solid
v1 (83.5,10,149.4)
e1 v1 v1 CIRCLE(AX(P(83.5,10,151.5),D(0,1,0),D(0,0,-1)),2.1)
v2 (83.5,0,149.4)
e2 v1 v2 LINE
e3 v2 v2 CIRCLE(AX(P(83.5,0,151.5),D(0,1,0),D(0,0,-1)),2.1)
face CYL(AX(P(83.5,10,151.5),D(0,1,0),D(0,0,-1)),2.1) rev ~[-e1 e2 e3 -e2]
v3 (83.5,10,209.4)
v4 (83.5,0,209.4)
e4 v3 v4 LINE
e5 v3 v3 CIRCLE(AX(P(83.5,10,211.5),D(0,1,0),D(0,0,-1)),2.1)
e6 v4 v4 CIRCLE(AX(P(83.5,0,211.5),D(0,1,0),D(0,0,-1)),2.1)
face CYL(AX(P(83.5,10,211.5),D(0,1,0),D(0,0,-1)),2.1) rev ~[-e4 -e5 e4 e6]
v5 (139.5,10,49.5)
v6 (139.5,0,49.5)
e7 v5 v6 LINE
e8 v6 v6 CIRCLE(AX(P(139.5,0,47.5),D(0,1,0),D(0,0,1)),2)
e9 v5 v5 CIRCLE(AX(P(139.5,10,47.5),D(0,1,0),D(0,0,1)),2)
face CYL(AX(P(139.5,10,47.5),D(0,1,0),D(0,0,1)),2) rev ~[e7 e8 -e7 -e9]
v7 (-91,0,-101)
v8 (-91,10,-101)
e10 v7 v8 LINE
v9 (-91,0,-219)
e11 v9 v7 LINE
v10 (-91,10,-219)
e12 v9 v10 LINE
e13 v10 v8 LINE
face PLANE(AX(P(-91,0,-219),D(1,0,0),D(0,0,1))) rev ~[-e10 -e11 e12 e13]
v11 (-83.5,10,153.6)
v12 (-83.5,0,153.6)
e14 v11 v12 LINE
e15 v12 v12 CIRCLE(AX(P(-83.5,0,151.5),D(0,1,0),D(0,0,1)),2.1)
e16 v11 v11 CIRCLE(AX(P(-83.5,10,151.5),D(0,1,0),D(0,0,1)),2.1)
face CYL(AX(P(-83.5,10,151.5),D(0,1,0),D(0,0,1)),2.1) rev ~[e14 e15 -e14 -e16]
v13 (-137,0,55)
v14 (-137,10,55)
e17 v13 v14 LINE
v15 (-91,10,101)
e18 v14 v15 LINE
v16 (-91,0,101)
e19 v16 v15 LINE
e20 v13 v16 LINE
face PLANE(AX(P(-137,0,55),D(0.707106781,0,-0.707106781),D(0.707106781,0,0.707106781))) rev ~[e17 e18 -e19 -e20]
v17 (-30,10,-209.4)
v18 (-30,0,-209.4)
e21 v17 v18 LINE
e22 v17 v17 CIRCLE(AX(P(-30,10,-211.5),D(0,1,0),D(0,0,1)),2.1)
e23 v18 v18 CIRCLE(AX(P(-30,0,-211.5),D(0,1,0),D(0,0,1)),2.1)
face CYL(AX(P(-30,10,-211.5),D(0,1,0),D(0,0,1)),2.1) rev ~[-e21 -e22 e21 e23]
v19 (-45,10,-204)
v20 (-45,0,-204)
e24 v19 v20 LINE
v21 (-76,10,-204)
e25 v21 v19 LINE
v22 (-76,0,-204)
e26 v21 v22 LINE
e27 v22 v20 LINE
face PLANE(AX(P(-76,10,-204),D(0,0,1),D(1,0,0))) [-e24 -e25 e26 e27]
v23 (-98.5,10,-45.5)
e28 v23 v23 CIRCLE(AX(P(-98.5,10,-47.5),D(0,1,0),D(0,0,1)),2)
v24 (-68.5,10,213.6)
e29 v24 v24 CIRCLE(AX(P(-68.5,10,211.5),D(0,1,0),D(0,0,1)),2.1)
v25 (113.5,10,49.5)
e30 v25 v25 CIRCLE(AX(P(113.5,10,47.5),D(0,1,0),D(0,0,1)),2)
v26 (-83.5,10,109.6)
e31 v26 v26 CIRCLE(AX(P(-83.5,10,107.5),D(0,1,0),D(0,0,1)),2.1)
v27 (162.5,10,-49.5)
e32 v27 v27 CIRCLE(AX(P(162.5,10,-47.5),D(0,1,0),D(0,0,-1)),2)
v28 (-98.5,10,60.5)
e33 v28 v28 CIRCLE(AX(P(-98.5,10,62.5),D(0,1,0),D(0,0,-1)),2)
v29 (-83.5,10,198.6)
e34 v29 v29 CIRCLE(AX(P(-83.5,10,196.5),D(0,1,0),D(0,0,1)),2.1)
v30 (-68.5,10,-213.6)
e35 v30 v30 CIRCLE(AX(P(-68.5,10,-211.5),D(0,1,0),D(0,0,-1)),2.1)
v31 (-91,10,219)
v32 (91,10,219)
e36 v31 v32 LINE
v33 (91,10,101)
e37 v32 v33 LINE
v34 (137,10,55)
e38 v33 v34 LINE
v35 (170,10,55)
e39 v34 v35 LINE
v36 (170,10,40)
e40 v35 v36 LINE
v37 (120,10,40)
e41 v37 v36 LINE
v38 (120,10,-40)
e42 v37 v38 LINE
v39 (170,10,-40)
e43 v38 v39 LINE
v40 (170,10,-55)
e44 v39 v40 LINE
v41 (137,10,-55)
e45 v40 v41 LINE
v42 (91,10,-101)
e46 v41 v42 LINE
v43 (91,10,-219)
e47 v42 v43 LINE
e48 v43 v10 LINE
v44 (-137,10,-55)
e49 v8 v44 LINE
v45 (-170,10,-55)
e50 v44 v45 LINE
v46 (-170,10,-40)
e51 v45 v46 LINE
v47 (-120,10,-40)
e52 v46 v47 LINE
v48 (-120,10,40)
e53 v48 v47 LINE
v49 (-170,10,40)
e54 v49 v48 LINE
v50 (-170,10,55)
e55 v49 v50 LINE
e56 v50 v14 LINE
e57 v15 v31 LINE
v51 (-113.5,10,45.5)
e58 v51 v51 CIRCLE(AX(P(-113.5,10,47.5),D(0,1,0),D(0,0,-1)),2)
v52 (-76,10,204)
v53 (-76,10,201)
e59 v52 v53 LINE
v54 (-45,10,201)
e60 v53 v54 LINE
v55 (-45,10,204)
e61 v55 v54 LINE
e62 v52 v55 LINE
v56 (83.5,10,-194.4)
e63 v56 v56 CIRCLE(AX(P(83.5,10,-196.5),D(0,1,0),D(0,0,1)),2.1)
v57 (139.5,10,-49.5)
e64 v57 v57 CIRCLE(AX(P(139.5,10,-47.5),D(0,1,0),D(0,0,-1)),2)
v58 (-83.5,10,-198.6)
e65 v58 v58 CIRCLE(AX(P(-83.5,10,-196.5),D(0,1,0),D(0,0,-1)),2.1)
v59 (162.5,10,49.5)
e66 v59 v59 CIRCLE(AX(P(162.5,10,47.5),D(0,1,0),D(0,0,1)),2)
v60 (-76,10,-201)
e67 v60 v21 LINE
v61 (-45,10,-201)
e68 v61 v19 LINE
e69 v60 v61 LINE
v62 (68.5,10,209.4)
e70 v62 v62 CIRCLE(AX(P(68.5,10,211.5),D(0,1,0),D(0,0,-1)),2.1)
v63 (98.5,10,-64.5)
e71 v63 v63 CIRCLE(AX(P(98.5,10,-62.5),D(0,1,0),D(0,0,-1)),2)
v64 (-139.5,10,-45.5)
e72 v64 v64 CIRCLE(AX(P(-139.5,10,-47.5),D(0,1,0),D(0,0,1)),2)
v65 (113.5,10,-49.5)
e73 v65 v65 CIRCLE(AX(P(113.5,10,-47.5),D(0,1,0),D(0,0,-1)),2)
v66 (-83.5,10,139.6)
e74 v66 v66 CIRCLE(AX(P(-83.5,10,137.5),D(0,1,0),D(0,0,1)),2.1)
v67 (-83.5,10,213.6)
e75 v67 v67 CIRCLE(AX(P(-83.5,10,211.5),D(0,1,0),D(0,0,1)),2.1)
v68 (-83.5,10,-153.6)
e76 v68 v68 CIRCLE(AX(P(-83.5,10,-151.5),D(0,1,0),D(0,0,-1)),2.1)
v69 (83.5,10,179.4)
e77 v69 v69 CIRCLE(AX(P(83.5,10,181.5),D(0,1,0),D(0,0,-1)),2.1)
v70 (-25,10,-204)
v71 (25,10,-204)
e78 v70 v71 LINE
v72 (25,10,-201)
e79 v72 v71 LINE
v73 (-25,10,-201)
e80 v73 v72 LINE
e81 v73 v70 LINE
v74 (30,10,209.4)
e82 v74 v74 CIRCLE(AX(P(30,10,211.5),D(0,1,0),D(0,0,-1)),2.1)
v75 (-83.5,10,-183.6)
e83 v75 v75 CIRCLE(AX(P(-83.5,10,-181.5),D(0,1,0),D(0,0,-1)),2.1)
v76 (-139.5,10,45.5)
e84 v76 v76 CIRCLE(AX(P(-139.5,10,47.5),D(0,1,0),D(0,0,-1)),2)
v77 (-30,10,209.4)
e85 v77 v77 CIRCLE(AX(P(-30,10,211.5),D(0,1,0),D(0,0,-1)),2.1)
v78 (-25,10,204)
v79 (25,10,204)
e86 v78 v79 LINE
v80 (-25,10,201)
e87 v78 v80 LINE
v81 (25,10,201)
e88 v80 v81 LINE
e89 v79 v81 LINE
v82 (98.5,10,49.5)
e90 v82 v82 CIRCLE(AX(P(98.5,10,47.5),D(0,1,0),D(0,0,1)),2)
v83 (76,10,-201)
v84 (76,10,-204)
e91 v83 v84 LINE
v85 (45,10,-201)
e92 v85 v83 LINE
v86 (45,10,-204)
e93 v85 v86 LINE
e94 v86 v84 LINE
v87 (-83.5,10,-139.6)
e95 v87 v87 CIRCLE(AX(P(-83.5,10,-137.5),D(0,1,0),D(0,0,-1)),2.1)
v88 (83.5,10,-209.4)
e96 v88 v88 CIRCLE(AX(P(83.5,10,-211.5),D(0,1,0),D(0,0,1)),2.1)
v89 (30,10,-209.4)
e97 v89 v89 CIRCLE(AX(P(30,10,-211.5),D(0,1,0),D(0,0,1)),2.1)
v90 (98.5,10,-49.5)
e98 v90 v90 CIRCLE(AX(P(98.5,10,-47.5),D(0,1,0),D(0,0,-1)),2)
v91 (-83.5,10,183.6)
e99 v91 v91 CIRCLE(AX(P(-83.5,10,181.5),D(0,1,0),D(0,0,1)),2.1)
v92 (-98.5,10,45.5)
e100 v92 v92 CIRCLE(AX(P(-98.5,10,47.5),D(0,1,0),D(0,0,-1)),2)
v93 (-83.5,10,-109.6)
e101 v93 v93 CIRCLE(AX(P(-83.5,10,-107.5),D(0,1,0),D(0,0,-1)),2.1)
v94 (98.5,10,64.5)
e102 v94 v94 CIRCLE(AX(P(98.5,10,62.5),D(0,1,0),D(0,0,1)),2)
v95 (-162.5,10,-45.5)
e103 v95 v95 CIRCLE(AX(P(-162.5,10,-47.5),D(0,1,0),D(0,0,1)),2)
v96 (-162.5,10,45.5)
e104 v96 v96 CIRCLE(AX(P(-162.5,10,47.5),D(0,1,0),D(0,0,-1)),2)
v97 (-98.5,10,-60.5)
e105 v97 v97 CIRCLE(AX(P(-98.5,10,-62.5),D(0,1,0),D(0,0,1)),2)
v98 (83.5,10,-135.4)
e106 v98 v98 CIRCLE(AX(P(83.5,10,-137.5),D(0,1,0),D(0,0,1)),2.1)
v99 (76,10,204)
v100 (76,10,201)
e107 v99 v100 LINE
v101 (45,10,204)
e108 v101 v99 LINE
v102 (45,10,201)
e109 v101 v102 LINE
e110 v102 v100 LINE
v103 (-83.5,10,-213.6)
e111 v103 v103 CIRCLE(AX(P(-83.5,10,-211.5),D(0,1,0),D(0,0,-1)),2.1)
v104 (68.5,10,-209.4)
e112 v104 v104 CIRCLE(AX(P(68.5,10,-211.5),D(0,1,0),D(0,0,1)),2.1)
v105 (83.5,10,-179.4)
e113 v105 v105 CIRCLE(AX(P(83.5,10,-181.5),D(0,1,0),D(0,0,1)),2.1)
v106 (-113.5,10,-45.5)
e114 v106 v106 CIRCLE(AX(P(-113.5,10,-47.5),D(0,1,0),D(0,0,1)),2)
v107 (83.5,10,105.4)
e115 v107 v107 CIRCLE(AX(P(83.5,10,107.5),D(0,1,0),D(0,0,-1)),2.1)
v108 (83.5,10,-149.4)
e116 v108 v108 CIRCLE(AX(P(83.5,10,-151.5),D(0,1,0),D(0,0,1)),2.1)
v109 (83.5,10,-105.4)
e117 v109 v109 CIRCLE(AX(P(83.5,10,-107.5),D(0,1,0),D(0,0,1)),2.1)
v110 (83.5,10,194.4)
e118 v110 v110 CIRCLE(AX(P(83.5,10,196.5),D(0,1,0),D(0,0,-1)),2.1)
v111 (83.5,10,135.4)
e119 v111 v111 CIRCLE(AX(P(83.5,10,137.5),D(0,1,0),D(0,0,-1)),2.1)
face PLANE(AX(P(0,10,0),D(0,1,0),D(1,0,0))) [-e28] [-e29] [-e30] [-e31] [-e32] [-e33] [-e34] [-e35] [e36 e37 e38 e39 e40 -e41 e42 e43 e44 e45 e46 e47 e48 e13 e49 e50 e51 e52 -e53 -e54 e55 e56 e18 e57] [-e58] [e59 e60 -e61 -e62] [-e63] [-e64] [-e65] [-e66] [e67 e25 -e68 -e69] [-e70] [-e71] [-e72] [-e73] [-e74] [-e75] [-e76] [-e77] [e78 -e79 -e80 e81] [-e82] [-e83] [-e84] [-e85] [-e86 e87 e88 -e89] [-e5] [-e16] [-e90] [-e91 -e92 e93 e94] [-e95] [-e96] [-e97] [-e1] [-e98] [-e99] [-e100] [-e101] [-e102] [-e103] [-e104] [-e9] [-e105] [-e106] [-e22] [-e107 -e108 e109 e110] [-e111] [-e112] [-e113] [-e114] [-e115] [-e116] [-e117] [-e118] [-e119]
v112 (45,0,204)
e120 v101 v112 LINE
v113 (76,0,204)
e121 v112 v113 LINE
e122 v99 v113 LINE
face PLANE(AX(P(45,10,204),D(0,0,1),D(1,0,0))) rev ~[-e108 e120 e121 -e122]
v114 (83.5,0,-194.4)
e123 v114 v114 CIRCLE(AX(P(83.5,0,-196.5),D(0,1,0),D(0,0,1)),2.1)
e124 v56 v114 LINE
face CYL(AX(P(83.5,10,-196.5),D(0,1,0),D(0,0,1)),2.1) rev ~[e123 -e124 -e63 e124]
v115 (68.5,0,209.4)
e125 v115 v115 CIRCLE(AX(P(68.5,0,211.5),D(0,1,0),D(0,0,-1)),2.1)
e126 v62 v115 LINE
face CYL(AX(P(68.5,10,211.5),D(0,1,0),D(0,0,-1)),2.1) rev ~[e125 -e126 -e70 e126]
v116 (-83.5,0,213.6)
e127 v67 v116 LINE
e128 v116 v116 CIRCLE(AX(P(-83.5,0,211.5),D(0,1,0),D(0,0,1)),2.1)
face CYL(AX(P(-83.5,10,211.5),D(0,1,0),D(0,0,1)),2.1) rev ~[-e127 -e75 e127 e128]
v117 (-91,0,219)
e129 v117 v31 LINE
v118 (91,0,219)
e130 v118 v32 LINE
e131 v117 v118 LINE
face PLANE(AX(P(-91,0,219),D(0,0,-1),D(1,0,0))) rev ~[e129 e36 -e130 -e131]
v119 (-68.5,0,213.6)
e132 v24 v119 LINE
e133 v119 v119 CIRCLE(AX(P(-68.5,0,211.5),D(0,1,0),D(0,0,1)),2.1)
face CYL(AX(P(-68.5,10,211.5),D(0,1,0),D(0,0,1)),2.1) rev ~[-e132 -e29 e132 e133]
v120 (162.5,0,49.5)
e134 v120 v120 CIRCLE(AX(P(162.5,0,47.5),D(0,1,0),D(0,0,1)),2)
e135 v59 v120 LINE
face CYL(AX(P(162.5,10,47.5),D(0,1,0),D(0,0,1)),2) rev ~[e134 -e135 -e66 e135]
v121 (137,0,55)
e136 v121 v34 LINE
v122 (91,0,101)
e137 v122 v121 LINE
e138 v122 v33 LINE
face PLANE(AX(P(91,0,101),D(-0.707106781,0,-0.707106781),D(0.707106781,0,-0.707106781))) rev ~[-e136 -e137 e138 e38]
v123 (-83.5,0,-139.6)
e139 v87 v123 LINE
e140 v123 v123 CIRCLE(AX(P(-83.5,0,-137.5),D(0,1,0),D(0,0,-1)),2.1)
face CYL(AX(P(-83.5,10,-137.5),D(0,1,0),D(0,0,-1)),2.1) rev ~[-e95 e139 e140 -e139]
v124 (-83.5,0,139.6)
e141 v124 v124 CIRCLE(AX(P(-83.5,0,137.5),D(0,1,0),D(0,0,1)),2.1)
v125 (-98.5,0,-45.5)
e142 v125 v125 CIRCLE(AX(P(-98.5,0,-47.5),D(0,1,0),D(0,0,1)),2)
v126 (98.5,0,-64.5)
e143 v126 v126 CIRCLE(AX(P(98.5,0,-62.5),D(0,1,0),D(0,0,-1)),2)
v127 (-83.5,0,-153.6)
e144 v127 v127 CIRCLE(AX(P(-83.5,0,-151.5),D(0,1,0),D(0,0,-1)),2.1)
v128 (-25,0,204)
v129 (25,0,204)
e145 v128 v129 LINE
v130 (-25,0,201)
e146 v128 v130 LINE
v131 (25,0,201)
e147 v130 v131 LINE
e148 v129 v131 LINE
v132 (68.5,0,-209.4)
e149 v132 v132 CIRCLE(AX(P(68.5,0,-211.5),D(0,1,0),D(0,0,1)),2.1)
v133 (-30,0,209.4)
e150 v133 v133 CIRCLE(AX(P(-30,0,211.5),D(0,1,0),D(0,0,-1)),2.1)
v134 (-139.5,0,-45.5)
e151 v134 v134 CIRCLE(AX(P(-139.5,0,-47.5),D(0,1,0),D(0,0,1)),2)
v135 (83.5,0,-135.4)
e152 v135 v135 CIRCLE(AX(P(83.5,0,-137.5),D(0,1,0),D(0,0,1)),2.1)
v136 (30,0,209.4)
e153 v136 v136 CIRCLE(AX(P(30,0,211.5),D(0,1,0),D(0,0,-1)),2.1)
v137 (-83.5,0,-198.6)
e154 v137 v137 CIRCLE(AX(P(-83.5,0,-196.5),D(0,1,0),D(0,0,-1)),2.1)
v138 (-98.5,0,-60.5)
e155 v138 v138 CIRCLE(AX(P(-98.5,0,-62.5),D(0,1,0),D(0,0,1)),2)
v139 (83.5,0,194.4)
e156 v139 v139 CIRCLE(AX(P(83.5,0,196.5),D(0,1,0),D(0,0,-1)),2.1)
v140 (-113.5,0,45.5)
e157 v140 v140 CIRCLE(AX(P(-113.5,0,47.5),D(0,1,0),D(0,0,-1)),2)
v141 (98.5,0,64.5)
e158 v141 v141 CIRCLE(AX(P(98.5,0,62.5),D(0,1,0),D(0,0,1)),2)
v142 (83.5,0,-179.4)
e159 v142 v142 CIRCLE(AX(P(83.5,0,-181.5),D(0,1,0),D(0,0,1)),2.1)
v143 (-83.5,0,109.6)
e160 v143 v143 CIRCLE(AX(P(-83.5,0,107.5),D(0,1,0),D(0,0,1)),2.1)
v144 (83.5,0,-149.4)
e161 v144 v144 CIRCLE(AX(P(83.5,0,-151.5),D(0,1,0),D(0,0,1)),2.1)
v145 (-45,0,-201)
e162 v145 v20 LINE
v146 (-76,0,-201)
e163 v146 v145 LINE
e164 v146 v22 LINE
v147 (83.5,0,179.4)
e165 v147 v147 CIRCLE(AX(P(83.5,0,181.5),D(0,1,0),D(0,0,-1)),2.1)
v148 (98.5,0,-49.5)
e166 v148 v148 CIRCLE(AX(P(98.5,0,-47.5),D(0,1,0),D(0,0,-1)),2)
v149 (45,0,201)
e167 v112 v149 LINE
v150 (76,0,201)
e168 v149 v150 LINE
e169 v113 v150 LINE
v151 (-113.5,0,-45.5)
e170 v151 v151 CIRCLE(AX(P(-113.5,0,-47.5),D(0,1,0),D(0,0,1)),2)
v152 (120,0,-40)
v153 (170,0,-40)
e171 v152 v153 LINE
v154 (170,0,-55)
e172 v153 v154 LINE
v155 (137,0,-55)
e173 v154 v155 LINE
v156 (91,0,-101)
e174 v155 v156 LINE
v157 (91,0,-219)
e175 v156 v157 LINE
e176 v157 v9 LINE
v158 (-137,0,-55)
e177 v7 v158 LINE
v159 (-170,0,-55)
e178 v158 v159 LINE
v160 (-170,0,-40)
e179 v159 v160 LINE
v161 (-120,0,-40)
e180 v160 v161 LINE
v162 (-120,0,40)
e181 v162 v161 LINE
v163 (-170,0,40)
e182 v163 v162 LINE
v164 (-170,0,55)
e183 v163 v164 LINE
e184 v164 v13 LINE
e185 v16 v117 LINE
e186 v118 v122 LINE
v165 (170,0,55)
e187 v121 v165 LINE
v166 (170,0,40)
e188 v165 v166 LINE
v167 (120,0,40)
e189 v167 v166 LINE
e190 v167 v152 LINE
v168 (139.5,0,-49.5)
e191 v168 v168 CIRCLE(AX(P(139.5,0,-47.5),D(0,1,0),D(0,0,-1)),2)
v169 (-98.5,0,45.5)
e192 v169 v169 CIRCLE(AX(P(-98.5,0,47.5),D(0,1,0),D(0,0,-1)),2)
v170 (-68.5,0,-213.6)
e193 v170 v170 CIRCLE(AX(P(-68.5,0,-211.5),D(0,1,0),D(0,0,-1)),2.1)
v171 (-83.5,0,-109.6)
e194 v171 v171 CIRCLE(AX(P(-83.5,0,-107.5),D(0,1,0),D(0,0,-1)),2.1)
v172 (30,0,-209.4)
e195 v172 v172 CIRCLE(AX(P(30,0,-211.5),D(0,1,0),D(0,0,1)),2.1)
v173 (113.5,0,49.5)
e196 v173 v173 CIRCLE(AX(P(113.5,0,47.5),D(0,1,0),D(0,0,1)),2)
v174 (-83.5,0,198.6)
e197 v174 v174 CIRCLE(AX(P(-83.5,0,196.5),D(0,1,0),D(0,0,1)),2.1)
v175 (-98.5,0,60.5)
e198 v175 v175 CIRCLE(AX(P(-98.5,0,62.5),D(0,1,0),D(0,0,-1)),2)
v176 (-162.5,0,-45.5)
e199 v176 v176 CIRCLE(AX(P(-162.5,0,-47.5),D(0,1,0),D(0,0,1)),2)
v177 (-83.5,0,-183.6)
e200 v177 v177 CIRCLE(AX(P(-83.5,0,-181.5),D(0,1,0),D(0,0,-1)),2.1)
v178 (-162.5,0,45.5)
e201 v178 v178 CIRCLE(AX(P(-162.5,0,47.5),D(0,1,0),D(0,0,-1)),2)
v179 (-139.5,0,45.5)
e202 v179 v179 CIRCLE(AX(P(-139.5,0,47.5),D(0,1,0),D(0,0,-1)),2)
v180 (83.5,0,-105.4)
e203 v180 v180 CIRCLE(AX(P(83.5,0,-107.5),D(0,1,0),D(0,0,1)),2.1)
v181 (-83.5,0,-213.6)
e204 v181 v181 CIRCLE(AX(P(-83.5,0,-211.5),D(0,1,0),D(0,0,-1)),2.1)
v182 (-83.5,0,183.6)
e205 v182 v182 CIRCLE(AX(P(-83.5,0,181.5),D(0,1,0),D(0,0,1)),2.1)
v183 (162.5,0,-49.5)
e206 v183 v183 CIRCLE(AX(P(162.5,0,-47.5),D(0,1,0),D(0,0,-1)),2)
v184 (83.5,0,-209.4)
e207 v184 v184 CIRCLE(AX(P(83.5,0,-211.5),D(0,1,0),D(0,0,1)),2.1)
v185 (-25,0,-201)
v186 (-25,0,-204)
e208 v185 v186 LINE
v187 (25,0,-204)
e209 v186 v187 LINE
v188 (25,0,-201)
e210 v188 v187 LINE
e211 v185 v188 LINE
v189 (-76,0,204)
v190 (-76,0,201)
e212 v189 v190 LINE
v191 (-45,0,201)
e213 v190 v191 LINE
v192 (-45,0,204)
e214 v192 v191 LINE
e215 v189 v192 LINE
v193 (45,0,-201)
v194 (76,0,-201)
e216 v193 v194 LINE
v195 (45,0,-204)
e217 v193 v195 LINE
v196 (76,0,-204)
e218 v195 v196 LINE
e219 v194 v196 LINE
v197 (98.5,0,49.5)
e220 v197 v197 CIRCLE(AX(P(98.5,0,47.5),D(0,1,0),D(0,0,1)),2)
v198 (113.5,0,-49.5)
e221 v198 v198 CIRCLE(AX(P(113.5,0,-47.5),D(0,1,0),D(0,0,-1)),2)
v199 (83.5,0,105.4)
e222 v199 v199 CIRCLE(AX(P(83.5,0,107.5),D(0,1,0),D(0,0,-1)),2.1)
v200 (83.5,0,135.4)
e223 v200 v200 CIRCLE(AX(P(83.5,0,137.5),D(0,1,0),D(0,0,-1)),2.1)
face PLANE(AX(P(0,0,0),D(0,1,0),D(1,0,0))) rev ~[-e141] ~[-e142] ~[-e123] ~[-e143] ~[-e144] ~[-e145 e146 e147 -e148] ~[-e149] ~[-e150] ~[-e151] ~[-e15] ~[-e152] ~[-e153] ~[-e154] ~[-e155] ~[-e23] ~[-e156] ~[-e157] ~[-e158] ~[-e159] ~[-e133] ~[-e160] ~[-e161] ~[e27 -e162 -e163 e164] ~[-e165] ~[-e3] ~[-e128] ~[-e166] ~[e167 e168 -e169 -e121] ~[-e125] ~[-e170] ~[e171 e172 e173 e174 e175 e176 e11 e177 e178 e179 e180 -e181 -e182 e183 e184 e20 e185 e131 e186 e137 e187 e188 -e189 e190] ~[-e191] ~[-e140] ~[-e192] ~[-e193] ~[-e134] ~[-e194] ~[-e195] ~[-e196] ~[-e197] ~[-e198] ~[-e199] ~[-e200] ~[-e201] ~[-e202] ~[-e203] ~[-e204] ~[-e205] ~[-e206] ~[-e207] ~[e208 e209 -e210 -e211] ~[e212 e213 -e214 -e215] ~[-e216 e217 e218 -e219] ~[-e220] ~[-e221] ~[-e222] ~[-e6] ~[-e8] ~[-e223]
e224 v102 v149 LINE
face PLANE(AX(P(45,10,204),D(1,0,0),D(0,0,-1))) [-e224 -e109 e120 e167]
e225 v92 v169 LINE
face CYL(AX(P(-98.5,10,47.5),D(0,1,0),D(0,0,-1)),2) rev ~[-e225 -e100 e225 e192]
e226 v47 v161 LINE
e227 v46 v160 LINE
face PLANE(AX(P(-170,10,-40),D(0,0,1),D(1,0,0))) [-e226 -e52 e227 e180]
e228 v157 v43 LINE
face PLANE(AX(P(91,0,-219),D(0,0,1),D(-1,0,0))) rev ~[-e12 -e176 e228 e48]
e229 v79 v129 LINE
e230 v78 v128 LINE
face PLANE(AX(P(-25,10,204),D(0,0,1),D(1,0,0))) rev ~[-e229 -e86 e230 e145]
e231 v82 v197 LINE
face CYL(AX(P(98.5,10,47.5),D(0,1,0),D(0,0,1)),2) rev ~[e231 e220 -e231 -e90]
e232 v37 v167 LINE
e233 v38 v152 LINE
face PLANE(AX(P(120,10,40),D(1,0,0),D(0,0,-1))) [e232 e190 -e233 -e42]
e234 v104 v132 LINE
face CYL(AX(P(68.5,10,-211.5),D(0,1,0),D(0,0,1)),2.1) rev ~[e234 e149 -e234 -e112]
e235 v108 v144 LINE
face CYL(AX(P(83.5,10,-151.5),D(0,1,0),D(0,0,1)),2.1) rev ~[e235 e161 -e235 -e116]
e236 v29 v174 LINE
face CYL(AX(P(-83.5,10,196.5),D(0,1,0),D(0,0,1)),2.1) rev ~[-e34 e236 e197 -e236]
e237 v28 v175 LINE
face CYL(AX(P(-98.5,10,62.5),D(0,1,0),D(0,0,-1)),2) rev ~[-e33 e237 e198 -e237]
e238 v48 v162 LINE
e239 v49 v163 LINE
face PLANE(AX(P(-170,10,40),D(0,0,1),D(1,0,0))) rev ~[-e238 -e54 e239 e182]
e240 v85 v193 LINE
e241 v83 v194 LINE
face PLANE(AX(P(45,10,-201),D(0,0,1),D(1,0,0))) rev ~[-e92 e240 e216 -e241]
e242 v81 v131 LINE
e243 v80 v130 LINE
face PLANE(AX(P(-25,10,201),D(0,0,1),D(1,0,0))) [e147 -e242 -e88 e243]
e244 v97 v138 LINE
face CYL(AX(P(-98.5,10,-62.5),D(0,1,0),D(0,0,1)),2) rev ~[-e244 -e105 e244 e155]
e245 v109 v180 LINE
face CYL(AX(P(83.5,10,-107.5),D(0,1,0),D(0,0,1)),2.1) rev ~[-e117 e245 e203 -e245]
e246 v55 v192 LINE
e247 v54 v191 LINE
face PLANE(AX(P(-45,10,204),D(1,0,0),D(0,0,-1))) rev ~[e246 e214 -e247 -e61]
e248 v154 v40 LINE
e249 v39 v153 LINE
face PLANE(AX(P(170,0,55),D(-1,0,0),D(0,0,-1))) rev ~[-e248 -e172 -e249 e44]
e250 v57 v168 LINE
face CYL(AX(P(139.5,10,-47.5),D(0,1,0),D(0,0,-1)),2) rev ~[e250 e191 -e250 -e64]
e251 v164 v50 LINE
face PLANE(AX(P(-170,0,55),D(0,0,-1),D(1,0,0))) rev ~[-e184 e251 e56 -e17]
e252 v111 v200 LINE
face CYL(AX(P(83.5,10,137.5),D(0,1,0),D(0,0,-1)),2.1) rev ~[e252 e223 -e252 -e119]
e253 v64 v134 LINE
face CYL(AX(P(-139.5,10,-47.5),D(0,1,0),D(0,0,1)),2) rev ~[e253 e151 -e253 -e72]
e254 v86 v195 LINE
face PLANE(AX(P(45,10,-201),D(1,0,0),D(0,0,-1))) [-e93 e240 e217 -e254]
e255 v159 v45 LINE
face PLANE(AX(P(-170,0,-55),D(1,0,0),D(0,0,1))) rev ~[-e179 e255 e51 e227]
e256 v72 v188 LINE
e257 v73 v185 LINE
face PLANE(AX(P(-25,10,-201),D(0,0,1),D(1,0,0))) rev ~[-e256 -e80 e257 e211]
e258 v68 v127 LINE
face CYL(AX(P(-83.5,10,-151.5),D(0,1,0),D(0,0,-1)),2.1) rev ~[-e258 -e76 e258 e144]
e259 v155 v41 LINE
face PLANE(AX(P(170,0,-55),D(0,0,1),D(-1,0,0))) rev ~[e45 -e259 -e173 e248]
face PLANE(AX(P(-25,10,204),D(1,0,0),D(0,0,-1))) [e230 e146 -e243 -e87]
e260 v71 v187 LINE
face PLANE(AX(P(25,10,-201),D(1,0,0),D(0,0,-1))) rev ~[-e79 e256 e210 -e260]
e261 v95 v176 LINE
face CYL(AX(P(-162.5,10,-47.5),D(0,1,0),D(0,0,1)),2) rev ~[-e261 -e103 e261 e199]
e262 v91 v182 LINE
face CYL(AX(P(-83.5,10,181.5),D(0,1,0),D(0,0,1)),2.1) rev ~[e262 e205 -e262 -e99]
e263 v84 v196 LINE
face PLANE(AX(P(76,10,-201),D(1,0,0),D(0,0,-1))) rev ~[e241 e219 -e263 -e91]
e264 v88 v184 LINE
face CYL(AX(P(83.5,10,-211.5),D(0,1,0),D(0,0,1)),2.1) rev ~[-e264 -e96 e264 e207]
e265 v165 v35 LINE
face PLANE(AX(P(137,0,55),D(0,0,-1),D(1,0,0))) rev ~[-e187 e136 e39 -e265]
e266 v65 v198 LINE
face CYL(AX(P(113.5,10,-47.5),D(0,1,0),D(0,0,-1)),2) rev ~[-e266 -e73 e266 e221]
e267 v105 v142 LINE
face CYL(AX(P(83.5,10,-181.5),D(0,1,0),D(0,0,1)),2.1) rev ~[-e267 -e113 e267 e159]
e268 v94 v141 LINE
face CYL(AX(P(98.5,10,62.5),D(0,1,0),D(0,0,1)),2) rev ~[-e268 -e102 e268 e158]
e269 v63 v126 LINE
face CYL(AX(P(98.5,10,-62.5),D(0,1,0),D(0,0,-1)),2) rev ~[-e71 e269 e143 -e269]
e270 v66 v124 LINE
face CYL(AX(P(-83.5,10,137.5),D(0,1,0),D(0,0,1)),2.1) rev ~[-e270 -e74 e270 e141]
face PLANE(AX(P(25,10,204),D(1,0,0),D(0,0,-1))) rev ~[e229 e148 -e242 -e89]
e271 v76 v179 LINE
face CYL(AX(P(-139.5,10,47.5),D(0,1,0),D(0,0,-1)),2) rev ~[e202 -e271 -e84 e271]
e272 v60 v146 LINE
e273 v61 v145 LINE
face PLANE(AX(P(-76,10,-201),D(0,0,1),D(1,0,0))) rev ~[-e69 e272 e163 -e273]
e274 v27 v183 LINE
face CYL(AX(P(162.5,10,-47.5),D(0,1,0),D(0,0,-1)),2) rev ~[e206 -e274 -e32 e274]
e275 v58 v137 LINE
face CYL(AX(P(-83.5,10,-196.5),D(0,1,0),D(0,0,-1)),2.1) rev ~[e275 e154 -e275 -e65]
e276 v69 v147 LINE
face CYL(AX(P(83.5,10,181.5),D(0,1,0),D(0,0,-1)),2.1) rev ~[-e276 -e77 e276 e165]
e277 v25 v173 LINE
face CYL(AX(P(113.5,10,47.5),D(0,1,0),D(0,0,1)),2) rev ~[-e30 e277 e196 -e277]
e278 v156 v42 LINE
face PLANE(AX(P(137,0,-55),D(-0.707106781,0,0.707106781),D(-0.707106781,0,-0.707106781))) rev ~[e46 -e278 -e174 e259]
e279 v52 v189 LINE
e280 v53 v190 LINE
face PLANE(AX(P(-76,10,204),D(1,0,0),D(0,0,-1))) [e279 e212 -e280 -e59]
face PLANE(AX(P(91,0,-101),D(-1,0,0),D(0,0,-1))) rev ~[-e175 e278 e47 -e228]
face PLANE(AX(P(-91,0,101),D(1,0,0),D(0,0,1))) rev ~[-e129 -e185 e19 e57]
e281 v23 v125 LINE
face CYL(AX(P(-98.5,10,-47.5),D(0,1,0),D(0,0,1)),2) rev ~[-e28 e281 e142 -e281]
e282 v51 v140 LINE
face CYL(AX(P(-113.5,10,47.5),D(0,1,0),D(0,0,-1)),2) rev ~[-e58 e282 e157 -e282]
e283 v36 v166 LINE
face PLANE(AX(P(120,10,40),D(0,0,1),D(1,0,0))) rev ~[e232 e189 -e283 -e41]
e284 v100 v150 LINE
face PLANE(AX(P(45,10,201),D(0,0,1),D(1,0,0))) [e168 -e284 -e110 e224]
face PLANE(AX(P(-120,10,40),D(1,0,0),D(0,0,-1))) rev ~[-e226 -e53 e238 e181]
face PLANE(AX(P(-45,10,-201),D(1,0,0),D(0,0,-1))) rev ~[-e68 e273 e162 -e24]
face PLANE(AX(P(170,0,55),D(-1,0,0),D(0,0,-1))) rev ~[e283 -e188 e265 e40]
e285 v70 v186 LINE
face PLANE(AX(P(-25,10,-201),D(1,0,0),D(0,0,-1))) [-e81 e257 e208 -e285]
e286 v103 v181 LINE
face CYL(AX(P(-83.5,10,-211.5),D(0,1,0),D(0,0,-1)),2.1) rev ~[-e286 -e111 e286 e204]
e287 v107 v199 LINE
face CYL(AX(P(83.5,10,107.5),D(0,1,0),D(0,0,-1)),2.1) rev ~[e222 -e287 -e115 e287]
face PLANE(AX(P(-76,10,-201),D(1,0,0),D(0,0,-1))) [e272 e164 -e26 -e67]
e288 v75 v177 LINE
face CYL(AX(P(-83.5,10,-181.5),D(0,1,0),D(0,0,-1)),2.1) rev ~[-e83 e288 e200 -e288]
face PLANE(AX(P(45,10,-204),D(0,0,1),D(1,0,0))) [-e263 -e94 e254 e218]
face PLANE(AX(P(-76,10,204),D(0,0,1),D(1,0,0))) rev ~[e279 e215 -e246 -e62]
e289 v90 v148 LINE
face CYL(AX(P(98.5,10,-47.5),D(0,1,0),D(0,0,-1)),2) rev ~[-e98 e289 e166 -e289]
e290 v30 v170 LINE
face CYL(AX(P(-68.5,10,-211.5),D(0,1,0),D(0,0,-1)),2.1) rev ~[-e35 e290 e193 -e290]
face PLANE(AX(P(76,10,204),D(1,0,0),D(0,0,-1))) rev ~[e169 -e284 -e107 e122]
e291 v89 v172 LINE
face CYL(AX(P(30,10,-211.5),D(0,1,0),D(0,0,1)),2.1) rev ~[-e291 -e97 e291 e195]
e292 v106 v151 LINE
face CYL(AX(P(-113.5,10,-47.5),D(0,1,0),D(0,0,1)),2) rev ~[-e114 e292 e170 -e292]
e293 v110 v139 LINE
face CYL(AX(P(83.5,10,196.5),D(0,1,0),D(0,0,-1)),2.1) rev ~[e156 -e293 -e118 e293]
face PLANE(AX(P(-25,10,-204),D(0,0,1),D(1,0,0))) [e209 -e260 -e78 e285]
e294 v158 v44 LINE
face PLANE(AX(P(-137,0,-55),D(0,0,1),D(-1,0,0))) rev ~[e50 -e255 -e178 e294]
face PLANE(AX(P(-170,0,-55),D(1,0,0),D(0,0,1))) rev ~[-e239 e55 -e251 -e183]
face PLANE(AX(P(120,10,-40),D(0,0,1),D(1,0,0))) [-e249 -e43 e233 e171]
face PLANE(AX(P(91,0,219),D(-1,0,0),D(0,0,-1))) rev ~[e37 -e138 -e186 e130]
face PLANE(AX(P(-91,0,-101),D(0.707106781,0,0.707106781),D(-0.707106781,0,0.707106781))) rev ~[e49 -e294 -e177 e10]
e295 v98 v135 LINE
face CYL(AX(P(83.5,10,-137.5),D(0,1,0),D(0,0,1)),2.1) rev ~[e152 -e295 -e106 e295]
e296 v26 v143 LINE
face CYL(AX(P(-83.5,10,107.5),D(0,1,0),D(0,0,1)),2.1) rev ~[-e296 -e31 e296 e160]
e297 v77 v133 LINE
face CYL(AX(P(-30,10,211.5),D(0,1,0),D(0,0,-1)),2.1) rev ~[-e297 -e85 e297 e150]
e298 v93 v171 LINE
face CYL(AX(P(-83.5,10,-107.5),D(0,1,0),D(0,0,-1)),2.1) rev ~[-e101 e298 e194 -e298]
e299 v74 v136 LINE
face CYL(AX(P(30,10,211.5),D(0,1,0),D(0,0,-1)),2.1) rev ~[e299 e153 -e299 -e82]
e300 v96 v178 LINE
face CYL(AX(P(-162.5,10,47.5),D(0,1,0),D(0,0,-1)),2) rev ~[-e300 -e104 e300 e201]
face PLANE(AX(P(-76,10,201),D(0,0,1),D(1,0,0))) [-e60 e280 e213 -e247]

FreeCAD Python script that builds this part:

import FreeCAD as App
import Part
import Sketcher
from FreeCAD import Vector
Q = App.Units.Quantity


def add_polygon(sketch, points):
    """Adds a closed chain of lines whose ends are joined by coincident constraints."""
    first, n = sketch.GeometryCount, len(points)
    for a, b in zip(points, points[1:] + points[:1]):
        sketch.addGeometry(Part.LineSegment(App.Vector(*a, 0), App.Vector(*b, 0)), False)
    for i in range(n):
        sketch.addConstraint(Sketcher.Constraint("Coincident", first + i, 2, first + (i + 1) % n, 1))

doc = App.newDocument("Part")
params = doc.addObject("Spreadsheet::Sheet", "Params")
for row, (alias, value) in enumerate([
    ("sketch1_width", "182 mm"),
    ("sketch1_width2", "33 mm"),
    ("sketch1_height", "118 mm"),
    ("sketch1_height2", "110 mm"),
    ("pad1_length", "10 mm"),
    ("sketch2_diameter", "4 mm"),
    ("sketch2_width", "50 mm"),
    ("sketch2_height", "80 mm"),
    ("sketch3_diameter", "4.2 mm"),
    ("sketch3_width", "50 mm"),
    ("sketch3_width2", "31 mm"),
    ("sketch3_height", "3 mm"),
], start=1):
    params.set(f"A{row}", alias)
    params.set(f"B{row}", "=" + value)
    params.setAlias(f"B{row}", alias)

body = doc.addObject("PartDesign::Body", "Body")

sketch1 = body.newObject("Sketcher::SketchObject", "Sketch")
sketch1.AttachmentSupport = (doc.getObject("XZ_Plane"), [""])
sketch1.MapMode = "FlatFace"
add_polygon(sketch1, [(-91, 219), (91, 219), (91, 101), (137, 55), (170, 55), (170, -55), (137, -55), (91, -101), (91, -219), (-91, -219), (-91, -101), (-137, -55), (-170, -55), (-170, 55), (-137, 55), (-91, 101)])
sketch1.addConstraint(Sketcher.Constraint("Horizontal", 0))
sketch1.addConstraint(Sketcher.Constraint("Vertical", 1))
sketch1.addConstraint(Sketcher.Constraint("Horizontal", 3))
sketch1.addConstraint(Sketcher.Constraint("Vertical", 4))
sketch1.addConstraint(Sketcher.Constraint("Horizontal", 5))
sketch1.addConstraint(Sketcher.Constraint("Vertical", 7))
sketch1.addConstraint(Sketcher.Constraint("Horizontal", 8))
sketch1.addConstraint(Sketcher.Constraint("Vertical", 9))
sketch1.addConstraint(Sketcher.Constraint("Horizontal", 11))
sketch1.addConstraint(Sketcher.Constraint("Vertical", 12))
sketch1.addConstraint(Sketcher.Constraint("Horizontal", 13))
sketch1.addConstraint(Sketcher.Constraint("Vertical", 15))
sketch1.addConstraint(Sketcher.Constraint("Symmetric", 0, 2, 8, 2, -1, 1))
sketch1.addConstraint(Sketcher.Constraint("Symmetric", 2, 2, 10, 2, -1, 1))
sketch1.addConstraint(Sketcher.Constraint("Symmetric", 4, 2, 12, 2, -1, 1))
sketch1.addConstraint(Sketcher.Constraint("Symmetric", 6, 2, 14, 2, -1, 1))
sketch1.addConstraint(Sketcher.Constraint("Symmetric", 6, 2, 9, 2, -2))
sketch1.addConstraint(Sketcher.Constraint("Symmetric", 5, 2, 10, 2, -2))
sketch1.addConstraint(Sketcher.Constraint("Perpendicular", 2, 6))
sketch1.addConstraint(Sketcher.Constraint("Perpendicular", 6, 10))
sketch1.addConstraint(Sketcher.Constraint("Perpendicular", 10, 14))
sketch1.addConstraint(Sketcher.Constraint("DistanceX", 0, 1, 0, 2, Q("182 mm")))
sketch1.addConstraint(Sketcher.Constraint("DistanceX", 3, 1, 3, 2, Q("33 mm")))
sketch1.addConstraint(Sketcher.Constraint("DistanceY", 1, 2, 1, 1, Q("118 mm")))
sketch1.addConstraint(Sketcher.Constraint("DistanceY", 4, 2, 4, 1, Q("110 mm")))
sketch1.addConstraint(Sketcher.Constraint("DistanceY", -1, 1, 0, 2, Q("219 mm")))
sketch1.setExpression("Constraints[37]", "Params.sketch1_width")
sketch1.setExpression("Constraints[38]", "Params.sketch1_width2")
sketch1.setExpression("Constraints[39]", "Params.sketch1_height")
sketch1.setExpression("Constraints[40]", "Params.sketch1_height2")
pad1 = body.newObject("PartDesign::Pad", "Pad")
pad1.Profile = sketch1
pad1.setExpression("Length", "Params.pad1_length")
pad1.Reversed = True

sketch2 = body.newObject("Sketcher::SketchObject", "Sketch001")
sketch2.AttachmentSupport = (doc.getObject("XZ_Plane"), [""])
sketch2.MapMode = "FlatFace"
sketch2.AttachmentOffset = App.Placement(Vector(0, 0, -10), App.Rotation())
sketch2.addGeometry(Part.Circle(Vector(-162.5, -47.5, 0), Vector(0, 0, 1), 2), False)
sketch2.addGeometry(Part.Circle(Vector(-139.5, -47.5, 0), Vector(0, 0, 1), 2), False)
sketch2.addGeometry(Part.Circle(Vector(-139.5, 47.5, 0), Vector(0, 0, 1), 2), False)
sketch2.addGeometry(Part.Circle(Vector(-162.5, 47.5, 0), Vector(0, 0, 1), 2), False)
sketch2.addGeometry(Part.Circle(Vector(-113.5, -47.5, 0), Vector(0, 0, 1), 2), False)
sketch2.addGeometry(Part.Circle(Vector(-98.5, -47.5, 0), Vector(0, 0, 1), 2), False)
sketch2.addGeometry(Part.Circle(Vector(-98.5, -62.5, 0), Vector(0, 0, 1), 2), False)
sketch2.addGeometry(Part.Circle(Vector(-98.5, 62.5, 0), Vector(0, 0, 1), 2), False)
sketch2.addGeometry(Part.Circle(Vector(-98.5, 47.5, 0), Vector(0, 0, 1), 2), False)
sketch2.addGeometry(Part.Circle(Vector(-113.5, 47.5, 0), Vector(0, 0, 1), 2), False)
sketch2.addGeometry(Part.Circle(Vector(113.5, 47.5, 0), Vector(0, 0, 1), 2), False)
sketch2.addGeometry(Part.Circle(Vector(98.5, 47.5, 0), Vector(0, 0, 1), 2), False)
sketch2.addGeometry(Part.Circle(Vector(98.5, 62.5, 0), Vector(0, 0, 1), 2), False)
sketch2.addGeometry(Part.Circle(Vector(98.5, -62.5, 0), Vector(0, 0, 1), 2), False)
sketch2.addGeometry(Part.Circle(Vector(98.5, -47.5, 0), Vector(0, 0, 1), 2), False)
sketch2.addGeometry(Part.Circle(Vector(113.5, -47.5, 0), Vector(0, 0, 1), 2), False)
sketch2.addGeometry(Part.Circle(Vector(162.5, 47.5, 0), Vector(0, 0, 1), 2), False)
sketch2.addGeometry(Part.Circle(Vector(139.5, 47.5, 0), Vector(0, 0, 1), 2), False)
sketch2.addGeometry(Part.Circle(Vector(139.5, -47.5, 0), Vector(0, 0, 1), 2), False)
sketch2.addGeometry(Part.Circle(Vector(162.5, -47.5, 0), Vector(0, 0, 1), 2), False)
add_polygon(sketch2, [(-170, -40), (-170, 40), (-120, 40), (-120, -40)])
add_polygon(sketch2, [(120, -40), (120, 40), (170, 40), (170, -40)])
sketch2.addConstraint(Sketcher.Constraint("Vertical", 20))
sketch2.addConstraint(Sketcher.Constraint("Horizontal", 21))
sketch2.addConstraint(Sketcher.Constraint("Vertical", 22))
sketch2.addConstraint(Sketcher.Constraint("Horizontal", 23))
sketch2.addConstraint(Sketcher.Constraint("Vertical", 24))
sketch2.addConstraint(Sketcher.Constraint("Horizontal", 25))
sketch2.addConstraint(Sketcher.Constraint("Vertical", 26))
sketch2.addConstraint(Sketcher.Constraint("Horizontal", 27))
sketch2.addConstraint(Sketcher.Constraint("Equal", 0, 1))
sketch2.addConstraint(Sketcher.Constraint("Equal", 1, 2))
sketch2.addConstraint(Sketcher.Constraint("Equal", 2, 3))
sketch2.addConstraint(Sketcher.Constraint("Equal", 3, 4))
sketch2.addConstraint(Sketcher.Constraint("Equal", 4, 5))
sketch2.addConstraint(Sketcher.Constraint("Equal", 5, 6))
sketch2.addConstraint(Sketcher.Constraint("Equal", 6, 7))
sketch2.addConstraint(Sketcher.Constraint("Equal", 7, 8))
sketch2.addConstraint(Sketcher.Constraint("Equal", 8, 9))
sketch2.addConstraint(Sketcher.Constraint("Equal", 9, 10))
sketch2.addConstraint(Sketcher.Constraint("Equal", 10, 11))
sketch2.addConstraint(Sketcher.Constraint("Equal", 11, 12))
sketch2.addConstraint(Sketcher.Constraint("Equal", 12, 13))
sketch2.addConstraint(Sketcher.Constraint("Equal", 13, 14))
sketch2.addConstraint(Sketcher.Constraint("Equal", 14, 15))
sketch2.addConstraint(Sketcher.Constraint("Equal", 15, 16))
sketch2.addConstraint(Sketcher.Constraint("Equal", 16, 17))
sketch2.addConstraint(Sketcher.Constraint("Equal", 17, 18))
sketch2.addConstraint(Sketcher.Constraint("Equal", 18, 19))
sketch2.addConstraint(Sketcher.Constraint("Symmetric", 4, 3, 10, 3, -1, 1))
sketch2.addConstraint(Sketcher.Constraint("Symmetric", 5, 3, 11, 3, -1, 1))
sketch2.addConstraint(Sketcher.Constraint("Symmetric", 6, 3, 12, 3, -1, 1))
sketch2.addConstraint(Sketcher.Constraint("Symmetric", 7, 3, 13, 3, -1, 1))
sketch2.addConstraint(Sketcher.Constraint("Symmetric", 8, 3, 14, 3, -1, 1))
sketch2.addConstraint(Sketcher.Constraint("Symmetric", 9, 3, 15, 3, -1, 1))
sketch2.addConstraint(Sketcher.Constraint("Symmetric", 0, 3, 16, 3, -1, 1))
sketch2.addConstraint(Sketcher.Constraint("Symmetric", 1, 3, 17, 3, -1, 1))
sketch2.addConstraint(Sketcher.Constraint("Symmetric", 2, 3, 18, 3, -1, 1))
sketch2.addConstraint(Sketcher.Constraint("Symmetric", 3, 3, 19, 3, -1, 1))
sketch2.addConstraint(Sketcher.Constraint("Symmetric", 22, 2, 24, 2, -1, 1))
sketch2.addConstraint(Sketcher.Constraint("Symmetric", 20, 2, 26, 2, -1, 1))
sketch2.addConstraint(Sketcher.Constraint("Symmetric", 9, 3, 10, 3, -2))
sketch2.addConstraint(Sketcher.Constraint("Symmetric", 8, 3, 11, 3, -2))
sketch2.addConstraint(Sketcher.Constraint("Symmetric", 7, 3, 12, 3, -2))
sketch2.addConstraint(Sketcher.Constraint("Symmetric", 3, 3, 16, 3, -2))
sketch2.addConstraint(Sketcher.Constraint("Symmetric", 2, 3, 17, 3, -2))
sketch2.addConstraint(Sketcher.Constraint("Horizontal", 0, 3, 1, 3))
sketch2.addConstraint(Sketcher.Constraint("Horizontal", 1, 3, 4, 3))
sketch2.addConstraint(Sketcher.Constraint("Horizontal", 4, 3, 5, 3))
sketch2.addConstraint(Sketcher.Constraint("Horizontal", 21, 2, 24, 2))
sketch2.addConstraint(Sketcher.Constraint("Vertical", 5, 3, 6, 3))
sketch2.addConstraint(Sketcher.Constraint("Diameter", 0, Q("4 mm")))
sketch2.addConstraint(Sketcher.Constraint("DistanceX", 21, 1, 21, 2, Q("50 mm")))
sketch2.addConstraint(Sketcher.Constraint("DistanceY", 20, 1, 20, 2, Q("80 mm")))
sketch2.addConstraint(Sketcher.Constraint("DistanceX", 20, 2, -1, 1, Q("170 mm")))
sketch2.addConstraint(Sketcher.Constraint("DistanceX", 0, 3, 1, 3, Q("23 mm")))
sketch2.addConstraint(Sketcher.Constraint("DistanceY", 1, 3, 2, 3, Q("95 mm")))
sketch2.addConstraint(Sketcher.Constraint("DistanceX", 1, 3, 4, 3, Q("26 mm")))
sketch2.addConstraint(Sketcher.Constraint("DistanceX", 4, 3, 5, 3, Q("15 mm")))
sketch2.addConstraint(Sketcher.Constraint("DistanceY", 6, 3, 5, 3, Q("15 mm")))
sketch2.addConstraint(Sketcher.Constraint("DistanceX", 8, 3, 10, 3, Q("212 mm")))
sketch2.setExpression("Constraints[57]", "Params.sketch2_diameter")
sketch2.setExpression("Constraints[58]", "Params.sketch2_width")
sketch2.setExpression("Constraints[59]", "Params.sketch2_height")
pocket1 = body.newObject("PartDesign::Pocket", "Pocket")
pocket1.Profile = sketch2
pocket1.Type = "ThroughAll"
pocket1.Reversed = True

sketch3 = body.newObject("Sketcher::SketchObject", "Sketch002")
sketch3.AttachmentSupport = (doc.getObject("XZ_Plane"), [""])
sketch3.MapMode = "FlatFace"
sketch3.AttachmentOffset = App.Placement(Vector(0, 0, -10), App.Rotation())
sketch3.addGeometry(Part.Circle(Vector(-30, -211.5, 0), Vector(0, 0, 1), 2.1), False)
sketch3.addGeometry(Part.Circle(Vector(30, -211.5, 0), Vector(0, 0, 1), 2.1), False)
sketch3.addGeometry(Part.Circle(Vector(68.5, -211.5, 0), Vector(0, 0, 1), 2.1), False)
sketch3.addGeometry(Part.Circle(Vector(83.5, -211.5, 0), Vector(0, 0, 1), 2.1), False)
sketch3.addGeometry(Part.Circle(Vector(83.5, -196.5, 0), Vector(0, 0, 1), 2.1), False)
sketch3.addGeometry(Part.Circle(Vector(83.5, -181.5, 0), Vector(0, 0, 1), 2.1), False)
sketch3.addGeometry(Part.Circle(Vector(83.5, -151.5, 0), Vector(0, 0, 1), 2.1), False)
sketch3.addGeometry(Part.Circle(Vector(83.5, -137.5, 0), Vector(0, 0, 1), 2.1), False)
sketch3.addGeometry(Part.Circle(Vector(83.5, -107.5, 0), Vector(0, 0, 1), 2.1), False)
sketch3.addGeometry(Part.Circle(Vector(-83.5, -107.5, 0), Vector(0, 0, 1), 2.1), False)
sketch3.addGeometry(Part.Circle(Vector(-83.5, -137.5, 0), Vector(0, 0, 1), 2.1), False)
sketch3.addGeometry(Part.Circle(Vector(-83.5, -151.5, 0), Vector(0, 0, 1), 2.1), False)
sketch3.addGeometry(Part.Circle(Vector(-83.5, -181.5, 0), Vector(0, 0, 1), 2.1), False)
sketch3.addGeometry(Part.Circle(Vector(-83.5, -196.5, 0), Vector(0, 0, 1), 2.1), False)
sketch3.addGeometry(Part.Circle(Vector(-83.5, -211.5, 0), Vector(0, 0, 1), 2.1), False)
sketch3.addGeometry(Part.Circle(Vector(-68.5, -211.5, 0), Vector(0, 0, 1), 2.1), False)
sketch3.addGeometry(Part.Circle(Vector(-68.5, 211.5, 0), Vector(0, 0, 1), 2.1), False)
sketch3.addGeometry(Part.Circle(Vector(-83.5, 211.5, 0), Vector(0, 0, 1), 2.1), False)
sketch3.addGeometry(Part.Circle(Vector(-83.5, 196.5, 0), Vector(0, 0, 1), 2.1), False)
sketch3.addGeometry(Part.Circle(Vector(-83.5, 181.5, 0), Vector(0, 0, 1), 2.1), False)
sketch3.addGeometry(Part.Circle(Vector(-83.5, 151.5, 0), Vector(0, 0, 1), 2.1), False)
sketch3.addGeometry(Part.Circle(Vector(-83.5, 137.5, 0), Vector(0, 0, 1), 2.1), False)
sketch3.addGeometry(Part.Circle(Vector(-83.5, 107.5, 0), Vector(0, 0, 1), 2.1), False)
sketch3.addGeometry(Part.Circle(Vector(83.5, 107.5, 0), Vector(0, 0, 1), 2.1), False)
sketch3.addGeometry(Part.Circle(Vector(83.5, 137.5, 0), Vector(0, 0, 1), 2.1), False)
sketch3.addGeometry(Part.Circle(Vector(83.5, 151.5, 0), Vector(0, 0, 1), 2.1), False)
sketch3.addGeometry(Part.Circle(Vector(83.5, 181.5, 0), Vector(0, 0, 1), 2.1), False)
sketch3.addGeometry(Part.Circle(Vector(83.5, 196.5, 0), Vector(0, 0, 1), 2.1), False)
sketch3.addGeometry(Part.Circle(Vector(83.5, 211.5, 0), Vector(0, 0, 1), 2.1), False)
sketch3.addGeometry(Part.Circle(Vector(68.5, 211.5, 0), Vector(0, 0, 1), 2.1), False)
sketch3.addGeometry(Part.Circle(Vector(30, 211.5, 0), Vector(0, 0, 1), 2.1), False)
sketch3.addGeometry(Part.Circle(Vector(-30, 211.5, 0), Vector(0, 0, 1), 2.1), False)
add_polygon(sketch3, [(-25, -204), (-25, -201), (25, -201), (25, -204)])
add_polygon(sketch3, [(45, -204), (45, -201), (76, -201), (76, -204)])
add_polygon(sketch3, [(-76, -204), (-76, -201), (-45, -201), (-45, -204)])
add_polygon(sketch3, [(-76, 201), (-76, 204), (-45, 204), (-45, 201)])
add_polygon(sketch3, [(45, 201), (45, 204), (76, 204), (76, 201)])
add_polygon(sketch3, [(-25, 201), (-25, 204), (25, 204), (25, 201)])
sketch3.addConstraint(Sketcher.Constraint("Vertical", 32))
sketch3.addConstraint(Sketcher.Constraint("Horizontal", 33))
sketch3.addConstraint(Sketcher.Constraint("Vertical", 34))
sketch3.addConstraint(Sketcher.Constraint("Horizontal", 35))
sketch3.addConstraint(Sketcher.Constraint("Vertical", 36))
sketch3.addConstraint(Sketcher.Constraint("Horizontal", 37))
sketch3.addConstraint(Sketcher.Constraint("Vertical", 38))
sketch3.addConstraint(Sketcher.Constraint("Horizontal", 39))
sketch3.addConstraint(Sketcher.Constraint("Vertical", 40))
sketch3.addConstraint(Sketcher.Constraint("Horizontal", 41))
sketch3.addConstraint(Sketcher.Constraint("Vertical", 42))
sketch3.addConstraint(Sketcher.Constraint("Horizontal", 43))
sketch3.addConstraint(Sketcher.Constraint("Vertical", 44))
sketch3.addConstraint(Sketcher.Constraint("Horizontal", 45))
sketch3.addConstraint(Sketcher.Constraint("Vertical", 46))
sketch3.addConstraint(Sketcher.Constraint("Horizontal", 47))
sketch3.addConstraint(Sketcher.Constraint("Vertical", 48))
sketch3.addConstraint(Sketcher.Constraint("Horizontal", 49))
sketch3.addConstraint(Sketcher.Constraint("Vertical", 50))
sketch3.addConstraint(Sketcher.Constraint("Horizontal", 51))
sketch3.addConstraint(Sketcher.Constraint("Vertical", 52))
sketch3.addConstraint(Sketcher.Constraint("Horizontal", 53))
sketch3.addConstraint(Sketcher.Constraint("Vertical", 54))
sketch3.addConstraint(Sketcher.Constraint("Horizontal", 55))
sketch3.addConstraint(Sketcher.Constraint("Equal", 0, 1))
sketch3.addConstraint(Sketcher.Constraint("Equal", 1, 2))
sketch3.addConstraint(Sketcher.Constraint("Equal", 2, 3))
sketch3.addConstraint(Sketcher.Constraint("Equal", 3, 4))
sketch3.addConstraint(Sketcher.Constraint("Equal", 4, 5))
sketch3.addConstraint(Sketcher.Constraint("Equal", 5, 6))
sketch3.addConstraint(Sketcher.Constraint("Equal", 6, 7))
sketch3.addConstraint(Sketcher.Constraint("Equal", 7, 8))
sketch3.addConstraint(Sketcher.Constraint("Equal", 8, 9))
sketch3.addConstraint(Sketcher.Constraint("Equal", 9, 10))
sketch3.addConstraint(Sketcher.Constraint("Equal", 10, 11))
sketch3.addConstraint(Sketcher.Constraint("Equal", 11, 12))
sketch3.addConstraint(Sketcher.Constraint("Equal", 12, 13))
sketch3.addConstraint(Sketcher.Constraint("Equal", 13, 14))
sketch3.addConstraint(Sketcher.Constraint("Equal", 14, 15))
sketch3.addConstraint(Sketcher.Constraint("Equal", 15, 16))
sketch3.addConstraint(Sketcher.Constraint("Equal", 16, 17))
sketch3.addConstraint(Sketcher.Constraint("Equal", 17, 18))
sketch3.addConstraint(Sketcher.Constraint("Equal", 18, 19))
sketch3.addConstraint(Sketcher.Constraint("Equal", 19, 20))
sketch3.addConstraint(Sketcher.Constraint("Equal", 20, 21))
sketch3.addConstraint(Sketcher.Constraint("Equal", 21, 22))
sketch3.addConstraint(Sketcher.Constraint("Equal", 22, 23))
sketch3.addConstraint(Sketcher.Constraint("Equal", 23, 24))
sketch3.addConstraint(Sketcher.Constraint("Equal", 24, 25))
sketch3.addConstraint(Sketcher.Constraint("Equal", 25, 26))
sketch3.addConstraint(Sketcher.Constraint("Equal", 26, 27))
sketch3.addConstraint(Sketcher.Constraint("Equal", 27, 28))
sketch3.addConstraint(Sketcher.Constraint("Equal", 28, 29))
sketch3.addConstraint(Sketcher.Constraint("Equal", 29, 30))
sketch3.addConstraint(Sketcher.Constraint("Equal", 30, 31))
sketch3.addConstraint(Sketcher.Constraint("Symmetric", 2, 3, 16, 3, -1, 1))
sketch3.addConstraint(Sketcher.Constraint("Symmetric", 3, 3, 17, 3, -1, 1))
sketch3.addConstraint(Sketcher.Constraint("Symmetric", 4, 3, 18, 3, -1, 1))
sketch3.addConstraint(Sketcher.Constraint("Symmetric", 5, 3, 19, 3, -1, 1))
sketch3.addConstraint(Sketcher.Constraint("Symmetric", 6, 3, 20, 3, -1, 1))
sketch3.addConstraint(Sketcher.Constraint("Symmetric", 7, 3, 21, 3, -1, 1))
sketch3.addConstraint(Sketcher.Constraint("Symmetric", 8, 3, 22, 3, -1, 1))
sketch3.addConstraint(Sketcher.Constraint("Symmetric", 9, 3, 23, 3, -1, 1))
sketch3.addConstraint(Sketcher.Constraint("Symmetric", 10, 3, 24, 3, -1, 1))
sketch3.addConstraint(Sketcher.Constraint("Symmetric", 11, 3, 25, 3, -1, 1))
sketch3.addConstraint(Sketcher.Constraint("Symmetric", 12, 3, 26, 3, -1, 1))
sketch3.addConstraint(Sketcher.Constraint("Symmetric", 13, 3, 27, 3, -1, 1))
sketch3.addConstraint(Sketcher.Constraint("Symmetric", 14, 3, 28, 3, -1, 1))
sketch3.addConstraint(Sketcher.Constraint("Symmetric", 15, 3, 29, 3, -1, 1))
sketch3.addConstraint(Sketcher.Constraint("Symmetric", 0, 3, 30, 3, -1, 1))
sketch3.addConstraint(Sketcher.Constraint("Symmetric", 1, 3, 31, 3, -1, 1))
sketch3.addConstraint(Sketcher.Constraint("Symmetric", 38, 2, 44, 2, -1, 1))
sketch3.addConstraint(Sketcher.Constraint("Symmetric", 36, 2, 46, 2, -1, 1))
sketch3.addConstraint(Sketcher.Constraint("Symmetric", 42, 2, 48, 2, -1, 1))
sketch3.addConstraint(Sketcher.Constraint("Symmetric", 40, 2, 50, 2, -1, 1))
sketch3.addConstraint(Sketcher.Constraint("Symmetric", 34, 2, 52, 2, -1, 1))
sketch3.addConstraint(Sketcher.Constraint("Symmetric", 32, 2, 54, 2, -1, 1))
sketch3.addConstraint(Sketcher.Constraint("Symmetric", 0, 3, 1, 3, -2))
sketch3.addConstraint(Sketcher.Constraint("Symmetric", 8, 3, 9, 3, -2))
sketch3.addConstraint(Sketcher.Constraint("Symmetric", 7, 3, 10, 3, -2))
sketch3.addConstraint(Sketcher.Constraint("Symmetric", 6, 3, 11, 3, -2))
sketch3.addConstraint(Sketcher.Constraint("Symmetric", 5, 3, 12, 3, -2))
sketch3.addConstraint(Sketcher.Constraint("Symmetric", 4, 3, 13, 3, -2))
sketch3.addConstraint(Sketcher.Constraint("Symmetric", 3, 3, 14, 3, -2))
sketch3.addConstraint(Sketcher.Constraint("Symmetric", 2, 3, 15, 3, -2))
sketch3.addConstraint(Sketcher.Constraint("Symmetric", 37, 2, 40, 2, -2))
sketch3.addConstraint(Sketcher.Constraint("Symmetric", 39, 2, 42, 2, -2))
sketch3.addConstraint(Sketcher.Constraint("Horizontal", 1, 3, 2, 3))
sketch3.addConstraint(Sketcher.Constraint("Horizontal", 2, 3, 3, 3))
sketch3.addConstraint(Sketcher.Constraint("Horizontal", 33, 2, 36, 2))
sketch3.addConstraint(Sketcher.Constraint("Horizontal", 35, 2, 38, 2))
sketch3.addConstraint(Sketcher.Constraint("Vertical", 3, 3, 4, 3))
sketch3.addConstraint(Sketcher.Constraint("Vertical", 4, 3, 5, 3))
sketch3.addConstraint(Sketcher.Constraint("Vertical", 5, 3, 6, 3))
sketch3.addConstraint(Sketcher.Constraint("Vertical", 6, 3, 7, 3))
sketch3.addConstraint(Sketcher.Constraint("Vertical", 7, 3, 8, 3))
sketch3.addConstraint(Sketcher.Constraint("Vertical", 35, 2, 52, 2))
sketch3.addConstraint(Sketcher.Constraint("Diameter", 0, Q("4.2 mm")))
sketch3.addConstraint(Sketcher.Constraint("DistanceX", 33, 1, 33, 2, Q("50 mm")))
sketch3.addConstraint(Sketcher.Constraint("DistanceX", 37, 1, 37, 2, Q("31 mm")))
sketch3.addConstraint(Sketcher.Constraint("DistanceY", 32, 1, 32, 2, Q("3 mm")))
sketch3.addConstraint(Sketcher.Constraint("DistanceX", 0, 3, -1, 1, Q("30 mm")))
sketch3.addConstraint(Sketcher.Constraint("DistanceY", 32, 2, -1, 1, Q("201 mm")))
sketch3.addConstraint(Sketcher.Constraint("DistanceX", -1, 1, 36, 2, Q("45 mm")))
sketch3.addConstraint(Sketcher.Constraint("DistanceX", 2, 3, 3, 3, Q("15 mm")))
sketch3.addConstraint(Sketcher.Constraint("DistanceY", 3, 3, 4, 3, Q("15 mm")))
sketch3.addConstraint(Sketcher.Constraint("DistanceY", 4, 3, 5, 3, Q("15 mm")))
sketch3.addConstraint(Sketcher.Constraint("DistanceY", 5, 3, 6, 3, Q("30 mm")))
sketch3.addConstraint(Sketcher.Constraint("DistanceY", 6, 3, 7, 3, Q("14 mm")))
sketch3.addConstraint(Sketcher.Constraint("DistanceY", 7, 3, 8, 3, Q("30 mm")))
sketch3.addConstraint(Sketcher.Constraint("DistanceX", 9, 3, 8, 3, Q("167 mm")))
sketch3.addConstraint(Sketcher.Constraint("DistanceY", 9, 3, 16, 3, Q("319 mm")))
sketch3.setExpression("Constraints[121]", "Params.sketch3_diameter")
sketch3.setExpression("Constraints[122]", "Params.sketch3_width")
sketch3.setExpression("Constraints[123]", "Params.sketch3_width2")
sketch3.setExpression("Constraints[124]", "Params.sketch3_height")
pocket2 = body.newObject("PartDesign::Pocket", "Pocket001")
pocket2.Profile = sketch3
pocket2.Type = "ThroughAll"
pocket2.Reversed = True

doc.recompute()
